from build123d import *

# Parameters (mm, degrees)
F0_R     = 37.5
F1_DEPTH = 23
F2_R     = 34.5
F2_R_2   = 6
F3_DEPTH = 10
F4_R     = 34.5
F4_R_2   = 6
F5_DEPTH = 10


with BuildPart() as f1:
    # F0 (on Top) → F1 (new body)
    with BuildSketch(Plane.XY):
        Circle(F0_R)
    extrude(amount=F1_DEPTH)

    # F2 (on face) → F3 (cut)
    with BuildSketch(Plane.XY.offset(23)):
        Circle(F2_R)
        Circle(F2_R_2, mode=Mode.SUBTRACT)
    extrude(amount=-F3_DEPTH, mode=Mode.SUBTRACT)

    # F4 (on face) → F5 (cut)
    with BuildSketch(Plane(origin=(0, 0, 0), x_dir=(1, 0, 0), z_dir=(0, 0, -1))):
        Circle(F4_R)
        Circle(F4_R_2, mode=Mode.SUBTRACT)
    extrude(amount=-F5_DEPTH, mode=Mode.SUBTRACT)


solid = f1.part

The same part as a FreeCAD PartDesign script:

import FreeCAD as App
import Part
import Sketcher
from FreeCAD import Vector
Q = App.Units.Quantity

doc = App.newDocument("Part")
body = doc.addObject("PartDesign::Body", "Body")

# Sketch on XY plane
sketch1 = body.newObject("Sketcher::SketchObject", "Sketch")
sketch1.AttachmentSupport = (doc.getObject("XY_Plane"), [""])
sketch1.MapMode = "FlatFace"
sketch1.addGeometry(Part.Circle(Vector(0, 0, 0), Vector(0, 0, 1), 38), False)
sketch1.addConstraint([
    Sketcher.Constraint("Coincident", 0, 3, -1, 1),
    Sketcher.Constraint("Diameter", 0, Q("75 mm")),
])
pad1 = body.newObject("PartDesign::Pad", "Pad")
pad1.Profile = sketch1
pad1.Length = 23

# Sketch on XY plane
sketch2 = body.newObject("Sketcher::SketchObject", "Sketch001")
sketch2.AttachmentSupport = (doc.getObject("XY_Plane"), [""])
sketch2.MapMode = "FlatFace"
sketch2.AttachmentOffset = App.Placement(Vector(0, 0, 23), App.Rotation())
sketch2.addGeometry([
    Part.Circle(Vector(0, 0, 0), Vector(0, 0, 1), 34),
    Part.Circle(Vector(0, 0, 0), Vector(0, 0, 1), 6),
], False)
sketch2.addConstraint([
    Sketcher.Constraint("Coincident", 0, 3, -1, 1),
    Sketcher.Constraint("Coincident", 1, 3, -1, 1),
    Sketcher.Constraint("Diameter", 0, Q("69 mm")),
    Sketcher.Constraint("Diameter", 1, Q("12 mm")),
])
pocket1 = body.newObject("PartDesign::Pocket", "Pocket")
pocket1.Profile = sketch2
pocket1.Length = 10

# Sketch on XY plane
sketch3 = body.newObject("Sketcher::SketchObject", "Sketch002")
sketch3.AttachmentSupport = (doc.getObject("XY_Plane"), [""])
sketch3.MapMode = "FlatFace"
sketch3.addGeometry([
    Part.Circle(Vector(0, 0, 0), Vector(0, 0, 1), 34),
    Part.Circle(Vector(0, 0, 0), Vector(0, 0, 1), 6),
], False)
sketch3.addConstraint([
    Sketcher.Constraint("Coincident", 0, 3, -1, 1),
    Sketcher.Constraint("Coincident", 1, 3, -1, 1),
    Sketcher.Constraint("Diameter", 0, Q("69 mm")),
    Sketcher.Constraint("Diameter", 1, Q("12 mm")),
])
pocket2 = body.newObject("PartDesign::Pocket", "Pocket001")
pocket2.Profile = sketch3
pocket2.Length = 10
pocket2.Reversed = True

doc.recompute()
